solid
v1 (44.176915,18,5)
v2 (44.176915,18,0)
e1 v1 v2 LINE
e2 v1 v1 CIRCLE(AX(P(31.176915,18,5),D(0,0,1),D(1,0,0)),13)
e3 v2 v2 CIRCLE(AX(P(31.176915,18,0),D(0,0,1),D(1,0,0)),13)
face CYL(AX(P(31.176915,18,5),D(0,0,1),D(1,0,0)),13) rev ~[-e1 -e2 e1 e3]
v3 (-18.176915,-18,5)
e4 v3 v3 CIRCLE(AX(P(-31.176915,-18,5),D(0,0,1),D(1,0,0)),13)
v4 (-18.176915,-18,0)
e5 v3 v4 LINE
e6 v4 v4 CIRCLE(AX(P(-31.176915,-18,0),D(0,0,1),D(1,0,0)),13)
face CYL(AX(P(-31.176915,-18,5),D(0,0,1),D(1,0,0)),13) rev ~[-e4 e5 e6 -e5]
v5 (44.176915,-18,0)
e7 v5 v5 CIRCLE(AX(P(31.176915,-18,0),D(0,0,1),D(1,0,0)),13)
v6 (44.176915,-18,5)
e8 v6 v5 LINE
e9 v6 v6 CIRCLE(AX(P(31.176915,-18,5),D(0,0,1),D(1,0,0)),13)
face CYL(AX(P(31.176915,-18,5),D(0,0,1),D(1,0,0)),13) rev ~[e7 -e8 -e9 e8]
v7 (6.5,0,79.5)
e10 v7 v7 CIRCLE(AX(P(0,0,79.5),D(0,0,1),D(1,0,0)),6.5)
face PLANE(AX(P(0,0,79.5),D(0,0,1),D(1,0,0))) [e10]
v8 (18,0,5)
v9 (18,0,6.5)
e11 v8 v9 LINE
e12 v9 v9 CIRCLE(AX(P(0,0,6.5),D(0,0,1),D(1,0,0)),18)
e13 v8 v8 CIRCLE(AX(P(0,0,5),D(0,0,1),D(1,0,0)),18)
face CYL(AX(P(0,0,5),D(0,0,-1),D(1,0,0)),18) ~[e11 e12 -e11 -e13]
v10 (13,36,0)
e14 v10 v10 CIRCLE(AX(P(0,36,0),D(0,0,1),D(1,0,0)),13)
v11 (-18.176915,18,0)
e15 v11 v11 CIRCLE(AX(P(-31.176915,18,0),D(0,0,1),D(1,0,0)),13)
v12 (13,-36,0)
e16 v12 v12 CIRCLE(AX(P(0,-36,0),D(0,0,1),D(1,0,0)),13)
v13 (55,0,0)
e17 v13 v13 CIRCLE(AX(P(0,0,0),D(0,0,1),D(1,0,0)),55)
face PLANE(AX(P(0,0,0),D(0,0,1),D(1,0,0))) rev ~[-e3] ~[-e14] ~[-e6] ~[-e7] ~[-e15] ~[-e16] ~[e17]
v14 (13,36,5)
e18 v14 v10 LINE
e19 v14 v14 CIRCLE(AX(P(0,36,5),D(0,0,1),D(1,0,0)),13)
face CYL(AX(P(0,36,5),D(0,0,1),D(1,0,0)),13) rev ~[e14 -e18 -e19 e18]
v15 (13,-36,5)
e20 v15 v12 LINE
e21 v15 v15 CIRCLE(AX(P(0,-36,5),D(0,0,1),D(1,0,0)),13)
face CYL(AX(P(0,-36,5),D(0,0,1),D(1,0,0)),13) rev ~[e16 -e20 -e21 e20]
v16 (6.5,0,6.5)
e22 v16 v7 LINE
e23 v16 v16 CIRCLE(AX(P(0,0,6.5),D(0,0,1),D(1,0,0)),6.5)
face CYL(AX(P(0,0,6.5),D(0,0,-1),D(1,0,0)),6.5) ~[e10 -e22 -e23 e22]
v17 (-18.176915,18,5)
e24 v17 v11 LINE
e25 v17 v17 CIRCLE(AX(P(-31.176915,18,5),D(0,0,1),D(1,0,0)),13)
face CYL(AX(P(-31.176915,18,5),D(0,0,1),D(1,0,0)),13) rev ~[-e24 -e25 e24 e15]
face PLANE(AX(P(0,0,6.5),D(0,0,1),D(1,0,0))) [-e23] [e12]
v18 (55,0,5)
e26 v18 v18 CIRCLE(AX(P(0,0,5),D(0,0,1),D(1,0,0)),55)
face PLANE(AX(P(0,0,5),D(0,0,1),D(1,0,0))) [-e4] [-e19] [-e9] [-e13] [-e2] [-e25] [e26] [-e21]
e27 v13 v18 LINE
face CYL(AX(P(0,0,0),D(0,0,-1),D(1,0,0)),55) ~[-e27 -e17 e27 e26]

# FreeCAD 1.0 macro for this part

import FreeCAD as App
import Part
import Sketcher
Q = App.Units.Quantity

doc = App.newDocument("Part")
body = doc.addObject("PartDesign::Body", "Body")

sketch1 = doc.addObject("Sketcher::SketchObject", "Sketch")
body.addObject(sketch1)
sketch1.AttachmentSupport = (doc.XY_Plane, [""])
sketch1.MapMode = "FlatFace"
sketch1.addGeometry(Part.Circle(App.Vector(0, 0, 0), App.Vector(0, 0, 1), 55), False)
sketch1.addConstraint(Sketcher.Constraint("Coincident", 0, 3, -1, 1))
sketch1.addConstraint(Sketcher.Constraint("Diameter", 0, Q("110 mm")))
pad1 = doc.addObject("PartDesign::Pad", "Pad")
body.addObject(pad1)
pad1.Profile = sketch1
pad1.Length = 5

sketch2 = doc.addObject("Sketcher::SketchObject", "Sketch001")
body.addObject(sketch2)
sketch2.AttachmentSupport = (doc.XY_Plane, [""])
sketch2.MapMode = "FlatFace"
sketch2.AttachmentOffset = App.Placement(App.Vector(0, 0, 5), App.Rotation())
sketch2.addGeometry(Part.Circle(App.Vector(0, 0, 0), App.Vector(0, 0, 1), 18), False)
sketch2.addConstraint(Sketcher.Constraint("Coincident", 0, 3, -1, 1))
sketch2.addConstraint(Sketcher.Constraint("Diameter", 0, Q("36 mm")))
pad2 = doc.addObject("PartDesign::Pad", "Pad001")
body.addObject(pad2)
pad2.Profile = sketch2
pad2.Length = 1.5

sketch3 = doc.addObject("Sketcher::SketchObject", "Sketch002")
body.addObject(sketch3)
sketch3.AttachmentSupport = (doc.XY_Plane, [""])
sketch3.MapMode = "FlatFace"
sketch3.AttachmentOffset = App.Placement(App.Vector(0, 0, 6.5), App.Rotation())
sketch3.addGeometry(Part.Circle(App.Vector(0, 0, 0), App.Vector(0, 0, 1), 6), False)
sketch3.addConstraint(Sketcher.Constraint("Coincident", 0, 3, -1, 1))
sketch3.addConstraint(Sketcher.Constraint("Diameter", 0, Q("13 mm")))
pad3 = doc.addObject("PartDesign::Pad", "Pad002")
body.addObject(pad3)
pad3.Profile = sketch3
pad3.Length = 73

sketch4 = doc.addObject("Sketcher::SketchObject", "Sketch003")
body.addObject(sketch4)
sketch4.AttachmentSupport = (doc.XY_Plane, [""])
sketch4.MapMode = "FlatFace"
sketch4.AttachmentOffset = App.Placement(App.Vector(0, 0, 5), App.Rotation())
sketch4.addGeometry(Part.Circle(App.Vector(0, 36, 0), App.Vector(0, 0, 1), 13), False)
sketch4.addGeometry(Part.Circle(App.Vector(-31, 18, 0), App.Vector(0, 0, 1), 13), False)
sketch4.addGeometry(Part.Circle(App.Vector(-31, -18, 0), App.Vector(0, 0, 1), 13), False)
sketch4.addGeometry(Part.Circle(App.Vector(0, -36, 0), App.Vector(0, 0, 1), 13), False)
sketch4.addGeometry(Part.Circle(App.Vector(31, -18, 0), App.Vector(0, 0, 1), 13), False)
sketch4.addGeometry(Part.Circle(App.Vector(31, 18, 0), App.Vector(0, 0, 1), 13), False)
sketch4.addConstraint(Sketcher.Constraint("Equal", 0, 1))
sketch4.addConstraint(Sketcher.Constraint("Equal", 1, 2))
sketch4.addConstraint(Sketcher.Constraint("Equal", 2, 3))
sketch4.addConstraint(Sketcher.Constraint("Equal", 3, 4))
sketch4.addConstraint(Sketcher.Constraint("Equal", 4, 5))
sketch4.addConstraint(Sketcher.Constraint("Symmetric", 0, 3, 3, 3, -1, 1))
sketch4.addConstraint(Sketcher.Constraint("Symmetric", 1, 3, 4, 3, -1, 1))
sketch4.addConstraint(Sketcher.Constraint("Symmetric", 2, 3, 5, 3, -1, 1))
sketch4.addConstraint(Sketcher.Constraint("Symmetric", 2, 3, 4, 3, -2))
sketch4.addConstraint(Sketcher.Constraint("PointOnObject", 0, 3, -2))
sketch4.addConstraint(Sketcher.Constraint("Diameter", 0, Q("26 mm")))
sketch4.addConstraint(Sketcher.Constraint("DistanceY", -1, 1, 0, 3, Q("36 mm")))
sketch4.addConstraint(Sketcher.Constraint("DistanceY", -1, 1, 1, 3, Q("18 mm")))
sketch4.addConstraint(Sketcher.Constraint("DistanceX", 2, 3, 4, 3, Q("62.35383 mm")))
pocket1 = doc.addObject("PartDesign::Pocket", "Pocket")
body.addObject(pocket1)
pocket1.Profile = sketch4
pocket1.Type = "ThroughAll"

doc.recompute()
